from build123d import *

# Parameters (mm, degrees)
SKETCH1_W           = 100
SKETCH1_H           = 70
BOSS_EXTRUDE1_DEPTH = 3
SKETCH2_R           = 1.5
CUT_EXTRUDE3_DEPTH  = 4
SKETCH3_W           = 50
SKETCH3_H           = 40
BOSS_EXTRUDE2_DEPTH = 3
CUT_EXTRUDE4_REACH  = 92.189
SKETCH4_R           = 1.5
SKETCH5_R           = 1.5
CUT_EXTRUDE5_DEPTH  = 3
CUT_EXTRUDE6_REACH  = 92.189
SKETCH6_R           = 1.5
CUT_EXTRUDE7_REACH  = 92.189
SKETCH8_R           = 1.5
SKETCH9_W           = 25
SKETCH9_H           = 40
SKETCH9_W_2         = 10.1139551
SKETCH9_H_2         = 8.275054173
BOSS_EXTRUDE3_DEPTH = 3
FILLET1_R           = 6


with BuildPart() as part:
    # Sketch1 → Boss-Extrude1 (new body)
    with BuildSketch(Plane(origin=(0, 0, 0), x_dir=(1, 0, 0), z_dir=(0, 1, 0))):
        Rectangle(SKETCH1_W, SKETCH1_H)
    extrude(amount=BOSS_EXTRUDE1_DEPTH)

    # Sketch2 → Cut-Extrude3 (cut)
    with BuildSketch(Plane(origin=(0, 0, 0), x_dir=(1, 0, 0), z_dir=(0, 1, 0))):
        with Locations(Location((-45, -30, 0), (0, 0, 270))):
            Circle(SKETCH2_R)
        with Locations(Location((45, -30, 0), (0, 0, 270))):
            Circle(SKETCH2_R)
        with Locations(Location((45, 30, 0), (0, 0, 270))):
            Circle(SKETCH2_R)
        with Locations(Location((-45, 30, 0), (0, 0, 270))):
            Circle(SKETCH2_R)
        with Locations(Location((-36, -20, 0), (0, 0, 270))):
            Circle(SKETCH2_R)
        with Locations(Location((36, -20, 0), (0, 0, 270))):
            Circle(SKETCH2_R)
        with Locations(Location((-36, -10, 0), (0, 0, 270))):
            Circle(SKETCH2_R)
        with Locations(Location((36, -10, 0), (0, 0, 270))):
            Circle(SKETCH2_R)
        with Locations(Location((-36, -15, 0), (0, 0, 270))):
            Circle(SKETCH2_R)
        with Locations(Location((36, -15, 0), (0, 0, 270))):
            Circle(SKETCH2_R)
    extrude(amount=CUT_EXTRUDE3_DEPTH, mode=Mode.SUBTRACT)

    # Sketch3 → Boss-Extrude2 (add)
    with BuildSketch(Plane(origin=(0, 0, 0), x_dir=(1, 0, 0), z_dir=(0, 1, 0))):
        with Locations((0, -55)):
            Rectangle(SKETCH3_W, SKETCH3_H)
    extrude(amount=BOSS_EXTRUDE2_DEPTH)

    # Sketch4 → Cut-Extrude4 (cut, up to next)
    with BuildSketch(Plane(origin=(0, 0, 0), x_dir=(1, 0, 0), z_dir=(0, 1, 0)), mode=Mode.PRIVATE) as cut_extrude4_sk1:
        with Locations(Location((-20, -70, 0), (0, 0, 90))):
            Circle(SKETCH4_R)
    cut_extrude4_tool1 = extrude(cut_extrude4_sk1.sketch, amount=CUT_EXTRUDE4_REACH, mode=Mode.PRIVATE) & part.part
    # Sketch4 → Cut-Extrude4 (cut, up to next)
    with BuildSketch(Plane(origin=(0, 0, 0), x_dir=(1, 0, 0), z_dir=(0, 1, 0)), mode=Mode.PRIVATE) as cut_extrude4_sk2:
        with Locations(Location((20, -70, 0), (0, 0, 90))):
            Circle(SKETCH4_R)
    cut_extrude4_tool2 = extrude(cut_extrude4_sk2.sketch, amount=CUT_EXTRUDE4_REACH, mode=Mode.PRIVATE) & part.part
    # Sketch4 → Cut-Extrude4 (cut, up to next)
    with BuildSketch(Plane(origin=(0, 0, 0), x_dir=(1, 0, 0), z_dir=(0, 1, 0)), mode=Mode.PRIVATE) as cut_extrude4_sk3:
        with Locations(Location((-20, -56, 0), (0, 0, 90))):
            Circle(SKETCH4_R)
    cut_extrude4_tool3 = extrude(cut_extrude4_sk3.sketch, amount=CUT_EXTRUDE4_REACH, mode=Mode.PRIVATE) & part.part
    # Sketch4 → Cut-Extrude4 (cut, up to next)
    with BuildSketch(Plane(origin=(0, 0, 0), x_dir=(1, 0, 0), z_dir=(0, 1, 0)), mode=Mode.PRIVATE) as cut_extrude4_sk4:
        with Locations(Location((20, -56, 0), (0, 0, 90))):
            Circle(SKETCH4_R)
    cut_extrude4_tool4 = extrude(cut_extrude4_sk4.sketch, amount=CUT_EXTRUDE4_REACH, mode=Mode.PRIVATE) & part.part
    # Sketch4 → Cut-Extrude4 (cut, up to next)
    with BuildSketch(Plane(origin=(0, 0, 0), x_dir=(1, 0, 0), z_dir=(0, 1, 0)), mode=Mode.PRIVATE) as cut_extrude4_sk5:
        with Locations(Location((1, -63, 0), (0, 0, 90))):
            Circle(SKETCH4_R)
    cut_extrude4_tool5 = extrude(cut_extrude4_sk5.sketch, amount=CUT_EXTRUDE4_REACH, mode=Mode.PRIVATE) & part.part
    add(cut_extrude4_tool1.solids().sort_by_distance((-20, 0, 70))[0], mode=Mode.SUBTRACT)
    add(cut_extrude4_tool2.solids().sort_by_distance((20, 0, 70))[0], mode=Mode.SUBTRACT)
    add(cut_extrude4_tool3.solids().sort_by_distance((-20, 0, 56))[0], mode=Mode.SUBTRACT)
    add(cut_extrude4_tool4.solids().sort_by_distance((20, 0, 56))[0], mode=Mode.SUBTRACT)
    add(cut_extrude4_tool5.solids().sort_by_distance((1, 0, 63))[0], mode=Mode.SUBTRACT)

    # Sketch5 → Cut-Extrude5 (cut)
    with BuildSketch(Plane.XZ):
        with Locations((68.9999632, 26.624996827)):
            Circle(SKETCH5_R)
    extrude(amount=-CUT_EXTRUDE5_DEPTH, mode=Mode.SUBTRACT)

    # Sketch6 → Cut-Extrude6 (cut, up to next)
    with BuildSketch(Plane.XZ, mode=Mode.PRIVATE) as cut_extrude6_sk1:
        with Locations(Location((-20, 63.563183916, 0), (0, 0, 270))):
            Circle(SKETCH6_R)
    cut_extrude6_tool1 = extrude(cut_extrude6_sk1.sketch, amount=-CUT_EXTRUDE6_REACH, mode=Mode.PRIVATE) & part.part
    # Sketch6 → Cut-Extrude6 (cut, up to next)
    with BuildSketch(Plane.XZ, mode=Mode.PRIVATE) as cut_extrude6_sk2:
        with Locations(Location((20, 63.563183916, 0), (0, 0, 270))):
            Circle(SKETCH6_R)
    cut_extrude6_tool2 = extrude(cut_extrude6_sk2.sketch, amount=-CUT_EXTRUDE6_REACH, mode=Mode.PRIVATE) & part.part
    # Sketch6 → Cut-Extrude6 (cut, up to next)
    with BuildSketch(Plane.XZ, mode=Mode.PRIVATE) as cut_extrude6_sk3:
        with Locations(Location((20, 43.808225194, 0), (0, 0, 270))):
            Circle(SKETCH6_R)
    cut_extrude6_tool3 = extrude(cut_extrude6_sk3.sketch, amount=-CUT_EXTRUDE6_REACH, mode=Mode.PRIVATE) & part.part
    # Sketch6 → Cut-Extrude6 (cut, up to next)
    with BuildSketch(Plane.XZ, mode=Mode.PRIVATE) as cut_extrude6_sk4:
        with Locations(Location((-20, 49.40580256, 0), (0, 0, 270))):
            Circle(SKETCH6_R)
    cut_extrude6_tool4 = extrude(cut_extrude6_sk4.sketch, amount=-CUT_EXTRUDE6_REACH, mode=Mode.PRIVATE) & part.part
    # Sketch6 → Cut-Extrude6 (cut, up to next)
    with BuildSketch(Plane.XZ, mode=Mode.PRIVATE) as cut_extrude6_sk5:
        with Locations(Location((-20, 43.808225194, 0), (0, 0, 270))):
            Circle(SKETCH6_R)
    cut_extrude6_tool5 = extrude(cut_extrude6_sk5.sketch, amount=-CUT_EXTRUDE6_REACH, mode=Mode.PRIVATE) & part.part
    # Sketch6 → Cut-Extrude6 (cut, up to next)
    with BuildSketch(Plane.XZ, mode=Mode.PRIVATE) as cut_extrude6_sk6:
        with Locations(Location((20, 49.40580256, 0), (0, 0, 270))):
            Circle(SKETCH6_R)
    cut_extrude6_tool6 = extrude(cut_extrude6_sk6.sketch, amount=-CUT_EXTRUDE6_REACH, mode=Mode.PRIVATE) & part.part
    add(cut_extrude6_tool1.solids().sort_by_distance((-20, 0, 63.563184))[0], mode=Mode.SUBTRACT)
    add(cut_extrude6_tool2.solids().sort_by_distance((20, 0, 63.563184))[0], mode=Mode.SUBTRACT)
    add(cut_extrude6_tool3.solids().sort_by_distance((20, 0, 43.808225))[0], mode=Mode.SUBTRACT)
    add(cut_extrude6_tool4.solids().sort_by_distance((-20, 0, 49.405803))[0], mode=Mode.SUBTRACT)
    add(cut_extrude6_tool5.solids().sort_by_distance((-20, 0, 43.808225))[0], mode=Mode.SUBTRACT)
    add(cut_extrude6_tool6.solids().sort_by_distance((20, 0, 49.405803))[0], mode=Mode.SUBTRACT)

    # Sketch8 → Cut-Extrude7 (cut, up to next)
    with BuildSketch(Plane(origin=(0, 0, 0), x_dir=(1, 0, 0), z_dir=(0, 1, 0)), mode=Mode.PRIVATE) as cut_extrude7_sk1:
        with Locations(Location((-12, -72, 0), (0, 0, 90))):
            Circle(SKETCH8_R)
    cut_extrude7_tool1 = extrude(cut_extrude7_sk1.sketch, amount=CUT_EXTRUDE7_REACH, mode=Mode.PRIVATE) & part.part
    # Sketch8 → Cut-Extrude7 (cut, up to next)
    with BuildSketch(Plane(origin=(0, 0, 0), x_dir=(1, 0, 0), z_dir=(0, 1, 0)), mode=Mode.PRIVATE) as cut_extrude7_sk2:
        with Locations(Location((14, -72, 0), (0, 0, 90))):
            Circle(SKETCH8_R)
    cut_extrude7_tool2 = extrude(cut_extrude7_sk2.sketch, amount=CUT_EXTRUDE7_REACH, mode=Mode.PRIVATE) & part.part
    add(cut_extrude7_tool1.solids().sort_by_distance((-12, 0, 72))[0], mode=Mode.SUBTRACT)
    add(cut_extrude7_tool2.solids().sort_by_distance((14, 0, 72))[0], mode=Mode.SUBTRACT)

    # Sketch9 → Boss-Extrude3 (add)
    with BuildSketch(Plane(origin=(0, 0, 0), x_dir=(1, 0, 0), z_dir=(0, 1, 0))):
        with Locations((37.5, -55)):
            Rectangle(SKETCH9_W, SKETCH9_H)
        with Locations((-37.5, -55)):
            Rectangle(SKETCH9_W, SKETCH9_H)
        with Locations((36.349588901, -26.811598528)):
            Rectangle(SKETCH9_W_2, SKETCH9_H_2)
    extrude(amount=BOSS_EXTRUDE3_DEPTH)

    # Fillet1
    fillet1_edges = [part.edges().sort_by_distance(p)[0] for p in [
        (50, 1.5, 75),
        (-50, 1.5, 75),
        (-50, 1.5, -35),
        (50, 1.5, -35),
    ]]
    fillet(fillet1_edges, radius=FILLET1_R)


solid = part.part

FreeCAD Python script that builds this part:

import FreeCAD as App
import Part
import Sketcher
Q = App.Units.Quantity


def edges_at(feature, points):
    """Names of the edges that pass closest to the given points."""
    edges = feature.Shape.Edges
    near = lambda p: min(range(len(edges)), key=lambda i: edges[i].distToShape(Part.Vertex(*p))[0])
    return sorted({f"Edge{near(p) + 1}" for p in points})

doc = App.newDocument("Part")
body = doc.addObject("PartDesign::Body", "Body")

# Sketch on XZ plane
sketch1 = body.newObject("Sketcher::SketchObject", "Sketch")
sketch1.AttachmentSupport = (doc.getObject("XZ_Plane"), [""])
sketch1.MapMode = "FlatFace"
sketch1.addGeometry([
    Part.LineSegment(App.Vector(-50, -35, 0), App.Vector(-50, 35, 0)),
    Part.LineSegment(App.Vector(-50, 35, 0), App.Vector(50, 35, 0)),
    Part.LineSegment(App.Vector(50, 35, 0), App.Vector(50, -35, 0)),
    Part.LineSegment(App.Vector(50, -35, 0), App.Vector(-50, -35, 0)),
], False)
sketch1.addConstraint([
    Sketcher.Constraint("Coincident", 0, 2, 1, 1),
    Sketcher.Constraint("Coincident", 1, 2, 2, 1),
    Sketcher.Constraint("Coincident", 2, 2, 3, 1),
    Sketcher.Constraint("Coincident", 3, 2, 0, 1),
    Sketcher.Constraint("Vertical", 0),
    Sketcher.Constraint("Horizontal", 1),
    Sketcher.Constraint("Vertical", 2),
    Sketcher.Constraint("Horizontal", 3),
    Sketcher.Constraint("Symmetric", 0, 2, 2, 2, -1, 1),
    Sketcher.Constraint("DistanceX", 1, 1, 1, 2, Q("100 mm")),
    Sketcher.Constraint("DistanceY", 0, 1, 0, 2, Q("70 mm")),
])
pad1 = body.newObject("PartDesign::Pad", "Pad")
pad1.Profile = sketch1
pad1.Length = 3
pad1.Reversed = True

# Sketch on XZ plane
sketch2 = body.newObject("Sketcher::SketchObject", "Sketch001")
sketch2.AttachmentSupport = (doc.getObject("XZ_Plane"), [""])
sketch2.MapMode = "FlatFace"
sketch2.addGeometry([
    Part.Circle(App.Vector(-45, 30, 0), App.Vector(0, 0, 1), 1.5),  # 0
    Part.Circle(App.Vector(45, 30, 0), App.Vector(0, 0, 1), 1.5),  # 1
    Part.Circle(App.Vector(45, -30, 0), App.Vector(0, 0, 1), 1.5),  # 2
    Part.Circle(App.Vector(-45, -30, 0), App.Vector(0, 0, 1), 1.5),  # 3
    Part.Circle(App.Vector(-36, 20, 0), App.Vector(0, 0, 1), 1.5),  # 4
    Part.Circle(App.Vector(36, 20, 0), App.Vector(0, 0, 1), 1.5),  # 5
    Part.Circle(App.Vector(-36, 10, 0), App.Vector(0, 0, 1), 1.5),  # 6
    Part.Circle(App.Vector(36, 10, 0), App.Vector(0, 0, 1), 1.5),  # 7
    Part.Circle(App.Vector(-36, 15, 0), App.Vector(0, 0, 1), 1.5),  # 8
    Part.Circle(App.Vector(36, 15, 0), App.Vector(0, 0, 1), 1.5),  # 9
], False)
sketch2.addConstraint([
    Sketcher.Constraint("Equal", 0, 1),
    Sketcher.Constraint("Equal", 1, 2),
    Sketcher.Constraint("Equal", 2, 3),
    Sketcher.Constraint("Equal", 3, 4),
    Sketcher.Constraint("Equal", 4, 5),
    Sketcher.Constraint("Equal", 5, 6),
    Sketcher.Constraint("Equal", 6, 7),
    Sketcher.Constraint("Equal", 7, 8),
    Sketcher.Constraint("Equal", 8, 9),
    Sketcher.Constraint("Symmetric", 0, 3, 2, 3, -1, 1),
    Sketcher.Constraint("Symmetric", 1, 3, 3, 3, -1, 1),
    Sketcher.Constraint("Symmetric", 0, 3, 1, 3, -2),
    Sketcher.Constraint("Symmetric", 4, 3, 5, 3, -2),
    Sketcher.Constraint("Symmetric", 6, 3, 7, 3, -2),
    Sketcher.Constraint("Symmetric", 8, 3, 9, 3, -2),
    Sketcher.Constraint("Vertical", 4, 3, 6, 3),
    Sketcher.Constraint("Vertical", 6, 3, 8, 3),
    Sketcher.Constraint("Diameter", 0, Q("3 mm")),
    Sketcher.Constraint("DistanceX", 0, 3, -1, 1, Q("45 mm")),
    Sketcher.Constraint("DistanceY", -1, 1, 0, 3, Q("30 mm")),
    Sketcher.Constraint("DistanceX", 4, 3, -1, 1, Q("36 mm")),
    Sketcher.Constraint("DistanceY", -1, 1, 4, 3, Q("20 mm")),
    Sketcher.Constraint("DistanceY", -1, 1, 6, 3, Q("10 mm")),
    Sketcher.Constraint("DistanceY", -1, 1, 8, 3, Q("15 mm")),
])
pocket1 = body.newObject("PartDesign::Pocket", "Pocket")
pocket1.Profile = sketch2
pocket1.Length = 4

# Sketch on XZ plane
sketch3 = body.newObject("Sketcher::SketchObject", "Sketch002")
sketch3.AttachmentSupport = (doc.getObject("XZ_Plane"), [""])
sketch3.MapMode = "FlatFace"
sketch3.addGeometry([
    Part.LineSegment(App.Vector(-25, 35, 0), App.Vector(-25, 75, 0)),
    Part.LineSegment(App.Vector(-25, 75, 0), App.Vector(25, 75, 0)),
    Part.LineSegment(App.Vector(25, 75, 0), App.Vector(25, 35, 0)),
    Part.LineSegment(App.Vector(25, 35, 0), App.Vector(-25, 35, 0)),
], False)
sketch3.addConstraint([
    Sketcher.Constraint("Coincident", 0, 2, 1, 1),
    Sketcher.Constraint("Coincident", 1, 2, 2, 1),
    Sketcher.Constraint("Coincident", 2, 2, 3, 1),
    Sketcher.Constraint("Coincident", 3, 2, 0, 1),
    Sketcher.Constraint("Vertical", 0),
    Sketcher.Constraint("Horizontal", 1),
    Sketcher.Constraint("Vertical", 2),
    Sketcher.Constraint("Horizontal", 3),
    Sketcher.Constraint("DistanceX", 1, 1, 1, 2, Q("50 mm")),
    Sketcher.Constraint("DistanceY", 0, 1, 0, 2, Q("40 mm")),
    Sketcher.Constraint("DistanceX", 0, 2, -1, 1, Q("25 mm")),
    Sketcher.Constraint("DistanceY", -1, 1, 0, 2, Q("75 mm")),
])
pad2 = body.newObject("PartDesign::Pad", "Pad001")
pad2.Profile = sketch3
pad2.Length = 3
pad2.Reversed = True

# Sketch on XZ plane
sketch4 = body.newObject("Sketcher::SketchObject", "Sketch003")
sketch4.AttachmentSupport = (doc.getObject("XZ_Plane"), [""])
sketch4.MapMode = "FlatFace"
sketch4.addGeometry(Part.Circle(App.Vector(-20, 70, 0), App.Vector(0, 0, 1), 1.5), False)
sketch4.addConstraint([
    Sketcher.Constraint("Diameter", 0, Q("3 mm")),
    Sketcher.Constraint("DistanceX", 0, 3, -1, 1, Q("20 mm")),
    Sketcher.Constraint("DistanceY", -1, 1, 0, 3, Q("70 mm")),
])
pocket2 = body.newObject("PartDesign::Pocket", "Pocket001")
pocket2.Profile = sketch4
pocket2.Type = "UpToFirst"

# Sketch on XZ plane
sketch5 = body.newObject("Sketcher::SketchObject", "Sketch004")
sketch5.AttachmentSupport = (doc.getObject("XZ_Plane"), [""])
sketch5.MapMode = "FlatFace"
sketch5.addGeometry(Part.Circle(App.Vector(20, 70, 0), App.Vector(0, 0, 1), 1.5), False)
sketch5.addConstraint([
    Sketcher.Constraint("Diameter", 0, Q("3 mm")),
    Sketcher.Constraint("DistanceX", -1, 1, 0, 3, Q("20 mm")),
    Sketcher.Constraint("DistanceY", -1, 1, 0, 3, Q("70 mm")),
])
pocket3 = body.newObject("PartDesign::Pocket", "Pocket002")
pocket3.Profile = sketch5
pocket3.Type = "UpToFirst"

# Sketch on XZ plane
sketch6 = body.newObject("Sketcher::SketchObject", "Sketch005")
sketch6.AttachmentSupport = (doc.getObject("XZ_Plane"), [""])
sketch6.MapMode = "FlatFace"
sketch6.addGeometry(Part.Circle(App.Vector(-20, 56, 0), App.Vector(0, 0, 1), 1.5), False)
sketch6.addConstraint([
    Sketcher.Constraint("Diameter", 0, Q("3 mm")),
    Sketcher.Constraint("DistanceX", 0, 3, -1, 1, Q("20 mm")),
    Sketcher.Constraint("DistanceY", -1, 1, 0, 3, Q("56 mm")),
])
pocket4 = body.newObject("PartDesign::Pocket", "Pocket003")
pocket4.Profile = sketch6
pocket4.Type = "UpToFirst"

# Sketch on XZ plane
sketch7 = body.newObject("Sketcher::SketchObject", "Sketch006")
sketch7.AttachmentSupport = (doc.getObject("XZ_Plane"), [""])
sketch7.MapMode = "FlatFace"
sketch7.addGeometry(Part.Circle(App.Vector(20, 56, 0), App.Vector(0, 0, 1), 1.5), False)
sketch7.addConstraint([
    Sketcher.Constraint("Diameter", 0, Q("3 mm")),
    Sketcher.Constraint("DistanceX", -1, 1, 0, 3, Q("20 mm")),
    Sketcher.Constraint("DistanceY", -1, 1, 0, 3, Q("56 mm")),
])
pocket5 = body.newObject("PartDesign::Pocket", "Pocket004")
pocket5.Profile = sketch7
pocket5.Type = "UpToFirst"

# Sketch on XZ plane
sketch8 = body.newObject("Sketcher::SketchObject", "Sketch007")
sketch8.AttachmentSupport = (doc.getObject("XZ_Plane"), [""])
sketch8.MapMode = "FlatFace"
sketch8.addGeometry(Part.Circle(App.Vector(1, 63, 0), App.Vector(0, 0, 1), 1.5), False)
sketch8.addConstraint([
    Sketcher.Constraint("Diameter", 0, Q("3 mm")),
    Sketcher.Constraint("DistanceX", -1, 1, 0, 3, Q("1 mm")),
    Sketcher.Constraint("DistanceY", -1, 1, 0, 3, Q("63 mm")),
])
pocket6 = body.newObject("PartDesign::Pocket", "Pocket005")
pocket6.Profile = sketch8
pocket6.Type = "UpToFirst"

# Sketch on XZ plane
sketch9 = body.newObject("Sketcher::SketchObject", "Sketch008")
sketch9.AttachmentSupport = (doc.getObject("XZ_Plane"), [""])
sketch9.MapMode = "FlatFace"
sketch9.addGeometry(Part.Circle(App.Vector(69, 26.6, 0), App.Vector(0, 0, 1), 1.5), False)
sketch9.addConstraint([
    Sketcher.Constraint("Diameter", 0, Q("3 mm")),
    Sketcher.Constraint("DistanceX", -1, 1, 0, 3, Q("68.999963 mm")),
    Sketcher.Constraint("DistanceY", -1, 1, 0, 3, Q("26.624997 mm")),
])
pocket7 = body.newObject("PartDesign::Pocket", "Pocket006")
pocket7.Profile = sketch9
pocket7.Length = 3

# Sketch on XZ plane
sketch10 = body.newObject("Sketcher::SketchObject", "Sketch009")
sketch10.AttachmentSupport = (doc.getObject("XZ_Plane"), [""])
sketch10.MapMode = "FlatFace"
sketch10.addGeometry(Part.Circle(App.Vector(-20, 63.6, 0), App.Vector(0, 0, 1), 1.5), False)
sketch10.addConstraint([
    Sketcher.Constraint("Diameter", 0, Q("3 mm")),
    Sketcher.Constraint("DistanceX", 0, 3, -1, 1, Q("20 mm")),
    Sketcher.Constraint("DistanceY", -1, 1, 0, 3, Q("63.563184 mm")),
])
pocket8 = body.newObject("PartDesign::Pocket", "Pocket007")
pocket8.Profile = sketch10
pocket8.Type = "UpToFirst"

# Sketch on XZ plane
sketch11 = body.newObject("Sketcher::SketchObject", "Sketch010")
sketch11.AttachmentSupport = (doc.getObject("XZ_Plane"), [""])
sketch11.MapMode = "FlatFace"
sketch11.addGeometry(Part.Circle(App.Vector(20, 63.6, 0), App.Vector(0, 0, 1), 1.5), False)
sketch11.addConstraint([
    Sketcher.Constraint("Diameter", 0, Q("3 mm")),
    Sketcher.Constraint("DistanceX", -1, 1, 0, 3, Q("20 mm")),
    Sketcher.Constraint("DistanceY", -1, 1, 0, 3, Q("63.563184 mm")),
])
pocket9 = body.newObject("PartDesign::Pocket", "Pocket008")
pocket9.Profile = sketch11
pocket9.Type = "UpToFirst"

# Sketch on XZ plane
sketch12 = body.newObject("Sketcher::SketchObject", "Sketch011")
sketch12.AttachmentSupport = (doc.getObject("XZ_Plane"), [""])
sketch12.MapMode = "FlatFace"
sketch12.addGeometry(Part.Circle(App.Vector(20, 43.8, 0), App.Vector(0, 0, 1), 1.5), False)
sketch12.addConstraint([
    Sketcher.Constraint("Diameter", 0, Q("3 mm")),
    Sketcher.Constraint("DistanceX", -1, 1, 0, 3, Q("20 mm")),
    Sketcher.Constraint("DistanceY", -1, 1, 0, 3, Q("43.808225 mm")),
])
pocket10 = body.newObject("PartDesign::Pocket", "Pocket009")
pocket10.Profile = sketch12
pocket10.Type = "UpToFirst"

# Sketch on XZ plane
sketch13 = body.newObject("Sketcher::SketchObject", "Sketch012")
sketch13.AttachmentSupport = (doc.getObject("XZ_Plane"), [""])
sketch13.MapMode = "FlatFace"
sketch13.addGeometry(Part.Circle(App.Vector(-20, 49.4, 0), App.Vector(0, 0, 1), 1.5), False)
sketch13.addConstraint([
    Sketcher.Constraint("Diameter", 0, Q("3 mm")),
    Sketcher.Constraint("DistanceX", 0, 3, -1, 1, Q("20 mm")),
    Sketcher.Constraint("DistanceY", -1, 1, 0, 3, Q("49.405803 mm")),
])
pocket11 = body.newObject("PartDesign::Pocket", "Pocket010")
pocket11.Profile = sketch13
pocket11.Type = "UpToFirst"

# Sketch on XZ plane
sketch14 = body.newObject("Sketcher::SketchObject", "Sketch013")
sketch14.AttachmentSupport = (doc.getObject("XZ_Plane"), [""])
sketch14.MapMode = "FlatFace"
sketch14.addGeometry(Part.Circle(App.Vector(-20, 43.8, 0), App.Vector(0, 0, 1), 1.5), False)
sketch14.addConstraint([
    Sketcher.Constraint("Diameter", 0, Q("3 mm")),
    Sketcher.Constraint("DistanceX", 0, 3, -1, 1, Q("20 mm")),
    Sketcher.Constraint("DistanceY", -1, 1, 0, 3, Q("43.808225 mm")),
])
pocket12 = body.newObject("PartDesign::Pocket", "Pocket011")
pocket12.Profile = sketch14
pocket12.Type = "UpToFirst"

# Sketch on XZ plane
sketch15 = body.newObject("Sketcher::SketchObject", "Sketch014")
sketch15.AttachmentSupport = (doc.getObject("XZ_Plane"), [""])
sketch15.MapMode = "FlatFace"
sketch15.addGeometry(Part.Circle(App.Vector(20, 49.4, 0), App.Vector(0, 0, 1), 1.5), False)
sketch15.addConstraint([
    Sketcher.Constraint("Diameter", 0, Q("3 mm")),
    Sketcher.Constraint("DistanceX", -1, 1, 0, 3, Q("20 mm")),
    Sketcher.Constraint("DistanceY", -1, 1, 0, 3, Q("49.405803 mm")),
])
pocket13 = body.newObject("PartDesign::Pocket", "Pocket012")
pocket13.Profile = sketch15
pocket13.Type = "UpToFirst"

# Sketch on XZ plane
sketch16 = body.newObject("Sketcher::SketchObject", "Sketch015")
sketch16.AttachmentSupport = (doc.getObject("XZ_Plane"), [""])
sketch16.MapMode = "FlatFace"
sketch16.addGeometry(Part.Circle(App.Vector(-12, 72, 0), App.Vector(0, 0, 1), 1.5), False)
sketch16.addConstraint([
    Sketcher.Constraint("Diameter", 0, Q("3 mm")),
    Sketcher.Constraint("DistanceX", 0, 3, -1, 1, Q("12 mm")),
    Sketcher.Constraint("DistanceY", -1, 1, 0, 3, Q("72 mm")),
])
pocket14 = body.newObject("PartDesign::Pocket", "Pocket013")
pocket14.Profile = sketch16
pocket14.Type = "UpToFirst"

# Sketch on XZ plane
sketch17 = body.newObject("Sketcher::SketchObject", "Sketch016")
sketch17.AttachmentSupport = (doc.getObject("XZ_Plane"), [""])
sketch17.MapMode = "FlatFace"
sketch17.addGeometry(Part.Circle(App.Vector(14, 72, 0), App.Vector(0, 0, 1), 1.5), False)
sketch17.addConstraint([
    Sketcher.Constraint("Diameter", 0, Q("3 mm")),
    Sketcher.Constraint("DistanceX", -1, 1, 0, 3, Q("14 mm")),
    Sketcher.Constraint("DistanceY", -1, 1, 0, 3, Q("72 mm")),
])
pocket15 = body.newObject("PartDesign::Pocket", "Pocket014")
pocket15.Profile = sketch17
pocket15.Type = "UpToFirst"

# Sketch on XZ plane
sketch18 = body.newObject("Sketcher::SketchObject", "Sketch017")
sketch18.AttachmentSupport = (doc.getObject("XZ_Plane"), [""])
sketch18.MapMode = "FlatFace"
sketch18.addGeometry([
    Part.LineSegment(App.Vector(25, 35, 0), App.Vector(25, 75, 0)),  # 0
    Part.LineSegment(App.Vector(25, 75, 0), App.Vector(50, 75, 0)),  # 1
    Part.LineSegment(App.Vector(50, 75, 0), App.Vector(50, 35, 0)),  # 2
    Part.LineSegment(App.Vector(50, 35, 0), App.Vector(25, 35, 0)),  # 3
    Part.LineSegment(App.Vector(-50, 35, 0), App.Vector(-50, 75, 0)),  # 4
    Part.LineSegment(App.Vector(-50, 75, 0), App.Vector(-25, 75, 0)),  # 5
    Part.LineSegment(App.Vector(-25, 75, 0), App.Vector(-25, 35, 0)),  # 6
    Part.LineSegment(App.Vector(-25, 35, 0), App.Vector(-50, 35, 0)),  # 7
    Part.LineSegment(App.Vector(31, 23, 0), App.Vector(31, 31, 0)),  # 8
    Part.LineSegment(App.Vector(31, 31, 0), App.Vector(41, 31, 0)),  # 9
    Part.LineSegment(App.Vector(41, 31, 0), App.Vector(41, 23, 0)),  # 10
    Part.LineSegment(App.Vector(41, 23, 0), App.Vector(31, 23, 0)),  # 11
], False)
sketch18.addConstraint([
    Sketcher.Constraint("Coincident", 0, 2, 1, 1),
    Sketcher.Constraint("Coincident", 1, 2, 2, 1),
    Sketcher.Constraint("Coincident", 2, 2, 3, 1),
    Sketcher.Constraint("Coincident", 3, 2, 0, 1),
    Sketcher.Constraint("Coincident", 4, 2, 5, 1),
    Sketcher.Constraint("Coincident", 5, 2, 6, 1),
    Sketcher.Constraint("Coincident", 6, 2, 7, 1),
    Sketcher.Constraint("Coincident", 7, 2, 4, 1),
    Sketcher.Constraint("Coincident", 8, 2, 9, 1),
    Sketcher.Constraint("Coincident", 9, 2, 10, 1),
    Sketcher.Constraint("Coincident", 10, 2, 11, 1),
    Sketcher.Constraint("Coincident", 11, 2, 8, 1),
    Sketcher.Constraint("Vertical", 0),
    Sketcher.Constraint("Horizontal", 1),
    Sketcher.Constraint("Vertical", 2),
    Sketcher.Constraint("Horizontal", 3),
    Sketcher.Constraint("Vertical", 4),
    Sketcher.Constraint("Horizontal", 5),
    Sketcher.Constraint("Vertical", 6),
    Sketcher.Constraint("Horizontal", 7),
    Sketcher.Constraint("Vertical", 8),
    Sketcher.Constraint("Horizontal", 9),
    Sketcher.Constraint("Vertical", 10),
    Sketcher.Constraint("Horizontal", 11),
    Sketcher.Constraint("Symmetric", 1, 2, 4, 2, -2),
    Sketcher.Constraint("Symmetric", 3, 2, 6, 2, -2),
    Sketcher.Constraint("DistanceX", 1, 1, 1, 2, Q("25 mm")),
    Sketcher.Constraint("DistanceY", 0, 1, 0, 2, Q("40 mm")),
    Sketcher.Constraint("DistanceX", -1, 1, 0, 2, Q("25 mm")),
    Sketcher.Constraint("DistanceY", -1, 1, 0, 2, Q("75 mm")),
    Sketcher.Constraint("DistanceX", 9, 1, 9, 2, Q("10.113955 mm")),
    Sketcher.Constraint("DistanceY", 8, 1, 8, 2, Q("8.275054 mm")),
    Sketcher.Constraint("DistanceX", -1, 1, 8, 2, Q("31.292611 mm")),
    Sketcher.Constraint("DistanceY", -1, 1, 10, 2, Q("22.674071 mm")),
])
pad3 = body.newObject("PartDesign::Pad", "Pad002")
pad3.Profile = sketch18
pad3.Length = 3
pad3.Reversed = True
doc.recompute()

fillet = body.newObject("PartDesign::Fillet", "Fillet")
fillet.Base = (pad3, edges_at(pad3, [
    (50, 1.5, 75),
    (-50, 1.5, 75),
    (-50, 1.5, -35),
    (50, 1.5, -35),
]))
fillet.Radius = 6

doc.recompute()
